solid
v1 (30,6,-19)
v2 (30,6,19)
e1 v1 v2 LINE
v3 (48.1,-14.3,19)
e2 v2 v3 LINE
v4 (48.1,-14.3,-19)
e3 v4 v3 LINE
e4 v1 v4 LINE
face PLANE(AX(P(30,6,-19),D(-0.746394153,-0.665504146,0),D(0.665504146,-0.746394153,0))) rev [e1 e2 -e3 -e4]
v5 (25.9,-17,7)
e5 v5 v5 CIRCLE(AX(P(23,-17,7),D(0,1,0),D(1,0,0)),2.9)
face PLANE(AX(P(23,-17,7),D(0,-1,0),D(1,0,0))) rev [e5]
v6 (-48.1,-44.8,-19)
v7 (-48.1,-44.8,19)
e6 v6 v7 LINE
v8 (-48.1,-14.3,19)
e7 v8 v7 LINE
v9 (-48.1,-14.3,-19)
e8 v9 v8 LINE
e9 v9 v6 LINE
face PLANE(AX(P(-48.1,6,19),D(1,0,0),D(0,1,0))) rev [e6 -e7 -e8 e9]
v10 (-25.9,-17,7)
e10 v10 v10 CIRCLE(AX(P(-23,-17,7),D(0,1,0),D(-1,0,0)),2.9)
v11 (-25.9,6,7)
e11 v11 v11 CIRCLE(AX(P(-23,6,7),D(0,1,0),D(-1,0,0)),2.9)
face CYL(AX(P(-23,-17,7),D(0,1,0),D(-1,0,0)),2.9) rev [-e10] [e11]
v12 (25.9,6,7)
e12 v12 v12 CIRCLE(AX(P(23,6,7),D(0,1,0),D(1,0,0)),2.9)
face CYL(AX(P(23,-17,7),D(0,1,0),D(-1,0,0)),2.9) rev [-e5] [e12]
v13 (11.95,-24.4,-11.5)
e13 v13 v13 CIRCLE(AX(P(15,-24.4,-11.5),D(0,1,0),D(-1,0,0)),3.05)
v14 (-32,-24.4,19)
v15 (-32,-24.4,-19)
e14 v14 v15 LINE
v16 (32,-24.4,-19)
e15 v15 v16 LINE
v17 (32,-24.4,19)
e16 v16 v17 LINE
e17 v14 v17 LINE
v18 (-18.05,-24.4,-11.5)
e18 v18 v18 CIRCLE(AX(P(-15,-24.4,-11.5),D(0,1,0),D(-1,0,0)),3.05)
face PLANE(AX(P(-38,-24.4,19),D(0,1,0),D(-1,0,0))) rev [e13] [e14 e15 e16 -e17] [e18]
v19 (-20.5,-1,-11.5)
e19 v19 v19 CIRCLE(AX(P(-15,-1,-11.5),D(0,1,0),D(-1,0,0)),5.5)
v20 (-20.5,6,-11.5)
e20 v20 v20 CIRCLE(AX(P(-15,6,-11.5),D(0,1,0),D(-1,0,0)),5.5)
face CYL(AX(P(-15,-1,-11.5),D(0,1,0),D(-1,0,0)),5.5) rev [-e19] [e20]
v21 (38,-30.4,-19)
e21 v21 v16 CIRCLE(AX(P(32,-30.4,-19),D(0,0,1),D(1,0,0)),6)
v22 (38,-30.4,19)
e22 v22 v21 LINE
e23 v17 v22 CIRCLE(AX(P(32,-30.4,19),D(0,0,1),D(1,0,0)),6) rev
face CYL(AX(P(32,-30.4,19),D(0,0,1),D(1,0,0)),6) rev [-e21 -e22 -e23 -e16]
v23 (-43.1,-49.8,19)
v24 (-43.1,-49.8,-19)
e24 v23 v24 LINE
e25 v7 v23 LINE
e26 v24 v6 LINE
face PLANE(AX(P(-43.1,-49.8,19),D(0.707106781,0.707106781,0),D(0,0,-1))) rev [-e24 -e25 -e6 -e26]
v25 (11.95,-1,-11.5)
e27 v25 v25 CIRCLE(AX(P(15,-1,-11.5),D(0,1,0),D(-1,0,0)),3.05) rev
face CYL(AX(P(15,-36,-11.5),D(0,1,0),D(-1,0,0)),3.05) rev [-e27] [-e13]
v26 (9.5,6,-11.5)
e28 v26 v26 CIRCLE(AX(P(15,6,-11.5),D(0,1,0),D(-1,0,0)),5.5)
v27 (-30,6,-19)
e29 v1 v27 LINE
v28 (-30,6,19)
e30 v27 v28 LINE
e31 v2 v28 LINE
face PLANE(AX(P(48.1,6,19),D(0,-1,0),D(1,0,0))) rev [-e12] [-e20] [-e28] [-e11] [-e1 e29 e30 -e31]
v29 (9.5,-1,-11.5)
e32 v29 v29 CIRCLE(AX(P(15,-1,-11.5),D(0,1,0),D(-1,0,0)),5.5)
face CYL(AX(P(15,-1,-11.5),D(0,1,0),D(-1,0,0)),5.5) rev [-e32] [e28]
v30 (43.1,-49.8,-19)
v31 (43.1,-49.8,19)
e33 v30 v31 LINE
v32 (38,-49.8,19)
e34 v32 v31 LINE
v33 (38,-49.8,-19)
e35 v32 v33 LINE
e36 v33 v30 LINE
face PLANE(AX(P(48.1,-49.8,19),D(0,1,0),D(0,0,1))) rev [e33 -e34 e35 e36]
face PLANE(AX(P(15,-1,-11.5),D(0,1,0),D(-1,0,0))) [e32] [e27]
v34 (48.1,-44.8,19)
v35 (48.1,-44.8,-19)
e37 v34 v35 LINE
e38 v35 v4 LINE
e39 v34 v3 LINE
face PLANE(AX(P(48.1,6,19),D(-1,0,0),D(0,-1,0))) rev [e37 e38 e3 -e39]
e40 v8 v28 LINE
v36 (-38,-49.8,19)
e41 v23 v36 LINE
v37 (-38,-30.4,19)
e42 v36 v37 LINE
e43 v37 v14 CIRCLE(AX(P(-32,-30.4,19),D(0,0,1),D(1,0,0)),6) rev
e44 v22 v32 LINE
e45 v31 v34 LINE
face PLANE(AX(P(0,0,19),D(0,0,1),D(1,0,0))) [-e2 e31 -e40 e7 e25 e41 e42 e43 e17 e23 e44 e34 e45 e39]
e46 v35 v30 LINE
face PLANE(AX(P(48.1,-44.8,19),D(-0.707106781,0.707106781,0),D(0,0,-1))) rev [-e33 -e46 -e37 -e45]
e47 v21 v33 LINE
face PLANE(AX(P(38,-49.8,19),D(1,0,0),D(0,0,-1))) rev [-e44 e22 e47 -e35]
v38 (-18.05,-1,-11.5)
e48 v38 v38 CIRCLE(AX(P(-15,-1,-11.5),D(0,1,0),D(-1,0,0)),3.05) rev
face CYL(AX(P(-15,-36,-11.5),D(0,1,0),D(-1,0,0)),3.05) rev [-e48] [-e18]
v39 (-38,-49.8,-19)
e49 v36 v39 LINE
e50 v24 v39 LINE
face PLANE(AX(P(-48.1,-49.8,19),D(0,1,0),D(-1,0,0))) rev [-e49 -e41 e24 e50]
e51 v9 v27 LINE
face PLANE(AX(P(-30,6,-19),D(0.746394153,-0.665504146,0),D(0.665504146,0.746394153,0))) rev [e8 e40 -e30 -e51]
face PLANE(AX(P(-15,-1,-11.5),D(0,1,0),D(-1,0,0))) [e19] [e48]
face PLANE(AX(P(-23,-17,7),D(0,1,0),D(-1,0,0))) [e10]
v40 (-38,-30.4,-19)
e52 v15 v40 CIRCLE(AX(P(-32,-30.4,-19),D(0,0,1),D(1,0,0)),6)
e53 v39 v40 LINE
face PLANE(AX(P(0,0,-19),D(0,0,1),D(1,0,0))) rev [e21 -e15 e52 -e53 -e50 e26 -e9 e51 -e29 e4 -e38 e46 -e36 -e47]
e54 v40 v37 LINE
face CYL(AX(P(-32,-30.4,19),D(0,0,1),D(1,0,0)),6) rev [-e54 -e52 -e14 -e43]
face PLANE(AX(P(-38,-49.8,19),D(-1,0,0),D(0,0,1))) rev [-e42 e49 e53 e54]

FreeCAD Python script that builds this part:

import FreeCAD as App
import Part
import Sketcher
from FreeCAD import Vector


def edges_at(feature, points):
    """Names of the edges that pass closest to the given points."""
    edges = feature.Shape.Edges
    near = lambda p: min(range(len(edges)), key=lambda i: edges[i].distToShape(Part.Vertex(*p))[0])
    return sorted({f"Edge{near(p) + 1}" for p in points})

doc = App.newDocument("Part")
body = doc.addObject("PartDesign::Body", "Body")

# Sketch on XY plane
sketch1 = body.newObject("Sketcher::SketchObject", "Sketch")
sketch1.AttachmentSupport = (doc.getObject("XY_Plane"), [""])
sketch1.MapMode = "FlatFace"
sketch1.addGeometry([
    Part.LineSegment(Vector(48, 6, 0), Vector(-48, 6, 0)),  # 0
    Part.LineSegment(Vector(-48, 6, 0), Vector(-48, -50, 0)),  # 1
    Part.LineSegment(Vector(-48, -50, 0), Vector(-38, -50, 0)),  # 2
    Part.LineSegment(Vector(-38, -50, 0), Vector(-38, -24, 0)),  # 3
    Part.LineSegment(Vector(-38, -24, 0), Vector(38, -24, 0)),  # 4
    Part.LineSegment(Vector(38, -24, 0), Vector(38, -50, 0)),  # 5
    Part.LineSegment(Vector(38, -50, 0), Vector(48, -50, 0)),  # 6
    Part.LineSegment(Vector(48, -50, 0), Vector(48, 6, 0)),  # 7
], False)
sketch1.addConstraint([
    Sketcher.Constraint("Coincident", 0, 2, 1, 1),
    Sketcher.Constraint("Coincident", 1, 2, 2, 1),
    Sketcher.Constraint("Coincident", 2, 2, 3, 1),
    Sketcher.Constraint("Coincident", 3, 2, 4, 1),
    Sketcher.Constraint("Coincident", 4, 2, 5, 1),
    Sketcher.Constraint("Coincident", 5, 2, 6, 1),
    Sketcher.Constraint("Coincident", 6, 2, 7, 1),
    Sketcher.Constraint("Coincident", 7, 2, 0, 1),
    Sketcher.Constraint("Horizontal", 0),
    Sketcher.Constraint("Vertical", 1),
    Sketcher.Constraint("Horizontal", 2),
    Sketcher.Constraint("Vertical", 3),
    Sketcher.Constraint("Horizontal", 4),
    Sketcher.Constraint("Vertical", 5),
    Sketcher.Constraint("Horizontal", 6),
    Sketcher.Constraint("Vertical", 7),
    Sketcher.Constraint("Symmetric", 2, 2, 5, 2, -2),
    Sketcher.Constraint("Equal", 2, 6),
    Sketcher.Constraint("DistanceX", 4, 1, 4, 2, 76.0),
    Sketcher.Constraint("DistanceX", 0, 2, 0, 1, 96.2),
    Sketcher.Constraint("DistanceY", 1, 2, 1, 1, 55.8),
    Sketcher.Constraint("DistanceY", 3, 1, 3, 2, 25.4),
    Sketcher.Constraint("DistanceY", -1, 1, 0, 2, 6.0),
])
pad1 = body.newObject("PartDesign::Pad", "Pad")
pad1.Profile = sketch1
pad1.Length = 38
pad1.Midplane = True

# Sketch on XY plane
sketch2 = body.newObject("Sketcher::SketchObject", "Sketch001")
sketch2.AttachmentSupport = (doc.getObject("XY_Plane"), [""])
sketch2.MapMode = "FlatFace"
sketch2.AttachmentOffset = App.Placement(Vector(0, 0, 19), App.Rotation())
sketch2.addGeometry([
    Part.LineSegment(Vector(-48, -14, 0), Vector(-30, 6, 0)),  # 0
    Part.LineSegment(Vector(-30, 6, 0), Vector(-48, 6, 0)),  # 1
    Part.LineSegment(Vector(-48, 6, 0), Vector(-48, -14, 0)),  # 2
    Part.LineSegment(Vector(48, 6, 0), Vector(30, 6, 0)),  # 3
    Part.LineSegment(Vector(30, 6, 0), Vector(48, -14, 0)),  # 4
    Part.LineSegment(Vector(48, -14, 0), Vector(48, 6, 0)),  # 5
], False)
sketch2.addConstraint([
    Sketcher.Constraint("Coincident", 0, 2, 1, 1),
    Sketcher.Constraint("Coincident", 1, 2, 2, 1),
    Sketcher.Constraint("Coincident", 2, 2, 0, 1),
    Sketcher.Constraint("Coincident", 3, 2, 4, 1),
    Sketcher.Constraint("Coincident", 4, 2, 5, 1),
    Sketcher.Constraint("Coincident", 5, 2, 3, 1),
    Sketcher.Constraint("Horizontal", 1),
    Sketcher.Constraint("Vertical", 2),
    Sketcher.Constraint("Horizontal", 3),
    Sketcher.Constraint("Vertical", 5),
    Sketcher.Constraint("Symmetric", 0, 2, 3, 2, -2),
    Sketcher.Constraint("Symmetric", 2, 2, 4, 2, -2),
    Sketcher.Constraint("DistanceX", 1, 2, 1, 1, 18.1),
    Sketcher.Constraint("DistanceY", 2, 2, 2, 1, 20.3),
    Sketcher.Constraint("DistanceX", 0, 2, -1, 1, 30.0),
    Sketcher.Constraint("DistanceY", -1, 1, 0, 2, 6.0),
])
pocket1 = body.newObject("PartDesign::Pocket", "Pocket")
pocket1.Profile = sketch2
pocket1.Type = "ThroughAll"
doc.recompute()

fillet = body.newObject("PartDesign::Fillet", "Fillet")
fillet.Base = (pocket1, edges_at(pocket1, [(38, -24.4, 0), (-38, -24.4, 0)]))
fillet.Radius = 6

# Sketch on XZ plane
sketch3 = body.newObject("Sketcher::SketchObject", "Sketch002")
sketch3.AttachmentSupport = (doc.getObject("XZ_Plane"), [""])
sketch3.MapMode = "FlatFace"
sketch3.AttachmentOffset = App.Placement(Vector(0, 0, -6), App.Rotation())
sketch3.addGeometry([
    Part.Circle(Vector(-15, -11.5, 0), Vector(0, 0, 1), 3),
    Part.Circle(Vector(15, -11.5, 0), Vector(0, 0, 1), 3),
], False)
sketch3.addConstraint([
    Sketcher.Constraint("Equal", 0, 1),
    Sketcher.Constraint("Symmetric", 0, 3, 1, 3, -2),
    Sketcher.Constraint("Diameter", 0, 6.1),
    Sketcher.Constraint("DistanceX", 0, 3, -1, 1, 15.0),
    Sketcher.Constraint("DistanceY", 0, 3, -1, 1, 11.5),
])
pocket2 = body.newObject("PartDesign::Pocket", "Pocket001")
pocket2.Profile = sketch3
pocket2.Length = 42
pocket2.Reversed = True

# Sketch on XZ plane
sketch4 = body.newObject("Sketcher::SketchObject", "Sketch003")
sketch4.AttachmentSupport = (doc.getObject("XZ_Plane"), [""])
sketch4.MapMode = "FlatFace"
sketch4.AttachmentOffset = App.Placement(Vector(0, 0, -6), App.Rotation())
sketch4.addGeometry([
    Part.Circle(Vector(-15, -12, 0), Vector(0, 0, 1), 6),
    Part.Circle(Vector(15, -12, 0), Vector(0, 0, 1), 6),
], False)
sketch4.addConstraint([
    Sketcher.Constraint("Equal", 0, 1),
    Sketcher.Constraint("Symmetric", 0, 3, 1, 3, -2),
    Sketcher.Constraint("Diameter", 0, 11.0),
    Sketcher.Constraint("DistanceX", 0, 3, -1, 1, 15.0),
    Sketcher.Constraint("DistanceY", 0, 3, -1, 1, 11.5),
])
pocket3 = body.newObject("PartDesign::Pocket", "Pocket002")
pocket3.Profile = sketch4
pocket3.Length = 7
pocket3.Reversed = True

# Sketch on XZ plane
sketch5 = body.newObject("Sketcher::SketchObject", "Sketch004")
sketch5.AttachmentSupport = (doc.getObject("XZ_Plane"), [""])
sketch5.MapMode = "FlatFace"
sketch5.AttachmentOffset = App.Placement(Vector(0, 0, -6), App.Rotation())
sketch5.addGeometry([
    Part.Circle(Vector(-23, 7, 0), Vector(0, 0, 1), 2.9),
    Part.Circle(Vector(23, 7, 0), Vector(0, 0, 1), 2.9),
], False)
sketch5.addConstraint([
    Sketcher.Constraint("Equal", 0, 1),
    Sketcher.Constraint("Symmetric", 0, 3, 1, 3, -2),
    Sketcher.Constraint("Diameter", 0, 5.8),
    Sketcher.Constraint("DistanceX", 0, 3, -1, 1, 23.0),
    Sketcher.Constraint("DistanceY", -1, 1, 0, 3, 7.0),
])
pocket4 = body.newObject("PartDesign::Pocket", "Pocket003")
pocket4.Profile = sketch5
pocket4.Length = 23
pocket4.Reversed = True
doc.recompute()

chamfer = body.newObject("PartDesign::Chamfer", "Chamfer")
chamfer.Base = (pocket4, edges_at(pocket4, [(48.1, -49.8, 0), (-48.1, -49.8, 0)]))
chamfer.Size = 5

doc.recompute()
